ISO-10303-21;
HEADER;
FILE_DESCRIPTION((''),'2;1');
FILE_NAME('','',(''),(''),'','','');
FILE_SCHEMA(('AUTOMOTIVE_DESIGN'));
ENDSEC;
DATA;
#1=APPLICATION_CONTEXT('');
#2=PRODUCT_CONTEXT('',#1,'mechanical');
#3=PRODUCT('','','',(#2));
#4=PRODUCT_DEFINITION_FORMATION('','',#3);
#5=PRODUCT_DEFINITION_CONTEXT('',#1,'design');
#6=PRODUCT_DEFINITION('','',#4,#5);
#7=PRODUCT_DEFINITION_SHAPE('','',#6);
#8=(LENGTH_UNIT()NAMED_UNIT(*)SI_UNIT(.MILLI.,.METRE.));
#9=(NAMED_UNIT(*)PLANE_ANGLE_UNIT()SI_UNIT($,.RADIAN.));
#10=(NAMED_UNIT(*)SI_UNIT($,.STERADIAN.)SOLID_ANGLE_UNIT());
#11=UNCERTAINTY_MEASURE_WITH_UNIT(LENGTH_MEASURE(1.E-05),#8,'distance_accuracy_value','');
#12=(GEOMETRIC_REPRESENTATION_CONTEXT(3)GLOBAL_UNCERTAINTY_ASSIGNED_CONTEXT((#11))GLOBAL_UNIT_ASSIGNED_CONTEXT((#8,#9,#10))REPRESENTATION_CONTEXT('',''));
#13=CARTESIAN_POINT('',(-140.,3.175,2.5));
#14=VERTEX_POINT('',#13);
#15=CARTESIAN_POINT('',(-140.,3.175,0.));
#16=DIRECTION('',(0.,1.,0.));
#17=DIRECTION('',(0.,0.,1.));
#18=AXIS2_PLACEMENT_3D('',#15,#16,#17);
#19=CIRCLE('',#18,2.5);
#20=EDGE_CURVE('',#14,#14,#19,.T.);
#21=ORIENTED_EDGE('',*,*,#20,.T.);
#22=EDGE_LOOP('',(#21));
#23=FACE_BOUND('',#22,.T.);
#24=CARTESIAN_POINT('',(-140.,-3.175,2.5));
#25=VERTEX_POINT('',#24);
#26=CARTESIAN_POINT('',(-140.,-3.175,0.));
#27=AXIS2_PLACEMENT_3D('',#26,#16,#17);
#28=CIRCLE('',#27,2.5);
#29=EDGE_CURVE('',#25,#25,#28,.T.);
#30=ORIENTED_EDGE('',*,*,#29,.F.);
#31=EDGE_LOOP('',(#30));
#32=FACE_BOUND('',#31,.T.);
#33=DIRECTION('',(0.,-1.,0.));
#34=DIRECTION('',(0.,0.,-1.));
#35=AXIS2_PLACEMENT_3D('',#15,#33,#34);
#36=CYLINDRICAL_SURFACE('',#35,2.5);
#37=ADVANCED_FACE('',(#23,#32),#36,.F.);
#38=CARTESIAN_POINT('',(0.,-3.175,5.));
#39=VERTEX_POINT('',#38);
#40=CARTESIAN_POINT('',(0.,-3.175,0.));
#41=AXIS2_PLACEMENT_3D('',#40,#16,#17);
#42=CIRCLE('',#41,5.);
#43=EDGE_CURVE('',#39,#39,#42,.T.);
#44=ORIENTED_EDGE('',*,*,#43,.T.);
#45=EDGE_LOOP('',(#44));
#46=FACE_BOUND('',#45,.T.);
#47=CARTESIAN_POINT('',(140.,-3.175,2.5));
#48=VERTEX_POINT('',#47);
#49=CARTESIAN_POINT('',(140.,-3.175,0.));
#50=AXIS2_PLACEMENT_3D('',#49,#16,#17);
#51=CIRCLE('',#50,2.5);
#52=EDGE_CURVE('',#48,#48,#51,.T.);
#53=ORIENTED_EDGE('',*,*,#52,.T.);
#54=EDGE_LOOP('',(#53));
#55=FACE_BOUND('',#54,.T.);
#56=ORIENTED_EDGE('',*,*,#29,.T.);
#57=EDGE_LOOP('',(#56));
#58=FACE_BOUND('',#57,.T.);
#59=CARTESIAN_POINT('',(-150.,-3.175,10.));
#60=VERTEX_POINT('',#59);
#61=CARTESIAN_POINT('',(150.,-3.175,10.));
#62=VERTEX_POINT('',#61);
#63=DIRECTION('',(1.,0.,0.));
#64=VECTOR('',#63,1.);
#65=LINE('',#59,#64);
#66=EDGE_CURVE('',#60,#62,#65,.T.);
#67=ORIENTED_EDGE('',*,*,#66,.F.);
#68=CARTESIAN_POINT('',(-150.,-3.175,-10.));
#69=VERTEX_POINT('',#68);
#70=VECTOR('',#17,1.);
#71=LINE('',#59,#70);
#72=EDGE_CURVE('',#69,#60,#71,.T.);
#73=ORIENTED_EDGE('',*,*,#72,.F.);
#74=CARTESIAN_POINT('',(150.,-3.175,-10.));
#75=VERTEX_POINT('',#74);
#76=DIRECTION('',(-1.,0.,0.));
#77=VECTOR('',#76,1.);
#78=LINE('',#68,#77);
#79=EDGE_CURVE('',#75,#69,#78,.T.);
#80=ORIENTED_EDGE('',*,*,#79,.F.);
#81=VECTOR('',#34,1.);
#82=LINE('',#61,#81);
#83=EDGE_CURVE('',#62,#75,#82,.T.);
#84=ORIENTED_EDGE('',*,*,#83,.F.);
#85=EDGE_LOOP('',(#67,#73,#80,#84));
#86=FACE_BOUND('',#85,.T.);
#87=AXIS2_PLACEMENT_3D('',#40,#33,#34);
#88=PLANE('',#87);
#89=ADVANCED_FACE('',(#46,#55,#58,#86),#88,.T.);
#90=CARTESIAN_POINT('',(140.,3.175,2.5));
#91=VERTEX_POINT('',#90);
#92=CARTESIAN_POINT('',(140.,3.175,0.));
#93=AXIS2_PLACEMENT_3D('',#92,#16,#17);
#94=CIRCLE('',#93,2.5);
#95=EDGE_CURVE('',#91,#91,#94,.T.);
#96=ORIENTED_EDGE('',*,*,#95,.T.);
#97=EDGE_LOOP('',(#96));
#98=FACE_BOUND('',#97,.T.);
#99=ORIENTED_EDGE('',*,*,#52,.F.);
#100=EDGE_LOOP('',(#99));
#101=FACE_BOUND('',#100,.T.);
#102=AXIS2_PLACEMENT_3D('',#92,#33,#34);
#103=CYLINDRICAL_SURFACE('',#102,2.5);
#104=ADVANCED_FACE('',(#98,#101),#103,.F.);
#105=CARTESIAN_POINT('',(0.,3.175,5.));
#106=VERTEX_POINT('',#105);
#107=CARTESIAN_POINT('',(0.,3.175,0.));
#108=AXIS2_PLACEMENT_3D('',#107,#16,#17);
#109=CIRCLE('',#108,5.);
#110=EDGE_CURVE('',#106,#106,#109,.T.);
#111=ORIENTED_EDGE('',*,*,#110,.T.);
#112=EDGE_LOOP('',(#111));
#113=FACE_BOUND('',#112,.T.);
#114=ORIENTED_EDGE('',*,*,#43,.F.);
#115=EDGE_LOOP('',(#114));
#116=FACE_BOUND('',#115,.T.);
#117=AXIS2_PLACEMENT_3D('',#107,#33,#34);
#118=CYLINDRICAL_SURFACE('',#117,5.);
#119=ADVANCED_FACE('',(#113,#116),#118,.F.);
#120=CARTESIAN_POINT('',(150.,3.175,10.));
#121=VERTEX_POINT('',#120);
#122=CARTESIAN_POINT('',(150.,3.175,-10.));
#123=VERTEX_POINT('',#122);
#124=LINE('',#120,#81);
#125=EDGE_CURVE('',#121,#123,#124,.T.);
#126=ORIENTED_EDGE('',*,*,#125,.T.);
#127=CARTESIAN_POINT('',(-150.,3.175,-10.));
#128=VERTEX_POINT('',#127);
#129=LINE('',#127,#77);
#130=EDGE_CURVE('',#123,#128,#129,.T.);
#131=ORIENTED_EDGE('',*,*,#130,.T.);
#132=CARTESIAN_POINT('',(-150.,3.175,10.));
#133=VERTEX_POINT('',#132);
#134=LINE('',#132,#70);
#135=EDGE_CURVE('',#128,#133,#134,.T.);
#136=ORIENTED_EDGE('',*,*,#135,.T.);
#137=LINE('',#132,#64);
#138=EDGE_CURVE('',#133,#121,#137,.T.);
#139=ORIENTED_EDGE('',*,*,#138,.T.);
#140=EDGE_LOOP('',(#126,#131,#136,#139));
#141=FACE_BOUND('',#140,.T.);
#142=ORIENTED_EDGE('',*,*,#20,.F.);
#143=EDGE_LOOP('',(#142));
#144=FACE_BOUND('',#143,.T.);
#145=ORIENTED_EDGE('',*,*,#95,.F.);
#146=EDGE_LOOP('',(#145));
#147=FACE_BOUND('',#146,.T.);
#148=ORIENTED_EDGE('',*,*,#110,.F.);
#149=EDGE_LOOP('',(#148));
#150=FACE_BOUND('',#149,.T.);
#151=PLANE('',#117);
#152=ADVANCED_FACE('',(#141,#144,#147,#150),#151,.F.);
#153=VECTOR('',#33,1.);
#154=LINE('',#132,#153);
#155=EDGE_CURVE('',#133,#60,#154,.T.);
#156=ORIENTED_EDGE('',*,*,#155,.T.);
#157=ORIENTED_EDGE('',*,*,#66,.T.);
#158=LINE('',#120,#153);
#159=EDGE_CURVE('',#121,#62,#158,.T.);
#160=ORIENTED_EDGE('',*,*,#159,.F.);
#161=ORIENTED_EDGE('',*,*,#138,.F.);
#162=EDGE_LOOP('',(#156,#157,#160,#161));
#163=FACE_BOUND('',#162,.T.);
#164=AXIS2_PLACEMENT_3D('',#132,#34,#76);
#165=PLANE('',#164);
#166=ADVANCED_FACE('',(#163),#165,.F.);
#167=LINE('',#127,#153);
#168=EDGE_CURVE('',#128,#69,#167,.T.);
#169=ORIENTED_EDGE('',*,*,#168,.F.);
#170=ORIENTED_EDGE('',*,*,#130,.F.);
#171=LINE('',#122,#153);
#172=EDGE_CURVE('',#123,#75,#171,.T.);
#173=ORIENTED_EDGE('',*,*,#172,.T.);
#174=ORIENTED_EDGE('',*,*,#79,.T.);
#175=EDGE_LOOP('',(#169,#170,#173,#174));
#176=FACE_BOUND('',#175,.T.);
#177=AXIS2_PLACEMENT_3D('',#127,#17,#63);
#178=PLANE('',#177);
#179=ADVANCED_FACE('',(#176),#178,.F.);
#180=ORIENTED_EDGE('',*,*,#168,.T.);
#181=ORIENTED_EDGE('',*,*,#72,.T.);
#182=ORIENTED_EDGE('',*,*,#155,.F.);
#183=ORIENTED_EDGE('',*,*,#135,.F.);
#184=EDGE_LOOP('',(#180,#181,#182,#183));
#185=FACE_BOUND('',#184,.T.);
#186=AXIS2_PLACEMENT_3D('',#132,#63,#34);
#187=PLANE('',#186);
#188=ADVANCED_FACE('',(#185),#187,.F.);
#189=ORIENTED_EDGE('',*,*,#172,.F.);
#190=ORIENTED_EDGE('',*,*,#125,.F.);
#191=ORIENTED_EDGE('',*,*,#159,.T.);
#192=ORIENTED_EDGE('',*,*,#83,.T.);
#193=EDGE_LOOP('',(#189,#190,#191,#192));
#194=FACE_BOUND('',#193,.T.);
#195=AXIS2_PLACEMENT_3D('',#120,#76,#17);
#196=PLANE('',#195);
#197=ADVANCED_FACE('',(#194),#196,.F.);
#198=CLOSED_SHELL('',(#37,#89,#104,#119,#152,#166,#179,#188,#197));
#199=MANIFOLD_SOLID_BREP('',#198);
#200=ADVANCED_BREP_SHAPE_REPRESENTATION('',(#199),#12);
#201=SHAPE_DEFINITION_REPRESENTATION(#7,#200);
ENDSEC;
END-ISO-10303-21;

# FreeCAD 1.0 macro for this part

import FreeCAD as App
import Part
import Sketcher
from FreeCAD import Vector


def add_polygon(sketch, points):
    """Adds a closed chain of lines whose ends are joined by coincident constraints."""
    first, n = sketch.GeometryCount, len(points)
    for a, b in zip(points, points[1:] + points[:1]):
        sketch.addGeometry(Part.LineSegment(App.Vector(*a, 0), App.Vector(*b, 0)), False)
    for i in range(n):
        sketch.addConstraint(Sketcher.Constraint("Coincident", first + i, 2, first + (i + 1) % n, 1))

doc = App.newDocument("Part")
body = doc.addObject("PartDesign::Body", "Body")

# Sketch on XZ plane
sketch1 = body.newObject("Sketcher::SketchObject", "Sketch")
sketch1.AttachmentSupport = (doc.getObject("XZ_Plane"), [""])
sketch1.MapMode = "FlatFace"
add_polygon(sketch1, [(-150, -10), (-150, 10), (150, 10), (150, -10)])  # lines 0-3
sketch1.addGeometry(Part.Circle(Vector(-140, 0, 0), Vector(0, 0, 1), 2.5), False)  # 4
sketch1.addGeometry(Part.Circle(Vector(0, 0, 0), Vector(0, 0, 1), 5), False)  # 5
sketch1.addGeometry(Part.Circle(Vector(140, 0, 0), Vector(0, 0, 1), 2.5), False)  # 6
sketch1.addConstraint(Sketcher.Constraint("Vertical", 0))
sketch1.addConstraint(Sketcher.Constraint("Horizontal", 1))
sketch1.addConstraint(Sketcher.Constraint("Vertical", 2))
sketch1.addConstraint(Sketcher.Constraint("Horizontal", 3))
sketch1.addConstraint(Sketcher.Constraint("Coincident", 5, 3, -1, 1))
sketch1.addConstraint(Sketcher.Constraint("Equal", 4, 6))
sketch1.addConstraint(Sketcher.Constraint("Symmetric", 4, 3, 6, 3, -1, 1))
sketch1.addConstraint(Sketcher.Constraint("Symmetric", 0, 2, 2, 2, -1, 1))
sketch1.addConstraint(Sketcher.Constraint("PointOnObject", 4, 3, -1))
sketch1.addConstraint(Sketcher.Constraint("Diameter", 4, 5.0))
sketch1.addConstraint(Sketcher.Constraint("Diameter", 5, 10.0))
sketch1.addConstraint(Sketcher.Constraint("DistanceX", 1, 1, 1, 2, 300.0))
sketch1.addConstraint(Sketcher.Constraint("DistanceY", 0, 1, 0, 2, 20.0))
sketch1.addConstraint(Sketcher.Constraint("DistanceX", 4, 3, -1, 1, 140.0))
pad1 = body.newObject("PartDesign::Pad", "Pad")
pad1.Profile = sketch1
pad1.Length = 6.35
pad1.Midplane = True

doc.recompute()
